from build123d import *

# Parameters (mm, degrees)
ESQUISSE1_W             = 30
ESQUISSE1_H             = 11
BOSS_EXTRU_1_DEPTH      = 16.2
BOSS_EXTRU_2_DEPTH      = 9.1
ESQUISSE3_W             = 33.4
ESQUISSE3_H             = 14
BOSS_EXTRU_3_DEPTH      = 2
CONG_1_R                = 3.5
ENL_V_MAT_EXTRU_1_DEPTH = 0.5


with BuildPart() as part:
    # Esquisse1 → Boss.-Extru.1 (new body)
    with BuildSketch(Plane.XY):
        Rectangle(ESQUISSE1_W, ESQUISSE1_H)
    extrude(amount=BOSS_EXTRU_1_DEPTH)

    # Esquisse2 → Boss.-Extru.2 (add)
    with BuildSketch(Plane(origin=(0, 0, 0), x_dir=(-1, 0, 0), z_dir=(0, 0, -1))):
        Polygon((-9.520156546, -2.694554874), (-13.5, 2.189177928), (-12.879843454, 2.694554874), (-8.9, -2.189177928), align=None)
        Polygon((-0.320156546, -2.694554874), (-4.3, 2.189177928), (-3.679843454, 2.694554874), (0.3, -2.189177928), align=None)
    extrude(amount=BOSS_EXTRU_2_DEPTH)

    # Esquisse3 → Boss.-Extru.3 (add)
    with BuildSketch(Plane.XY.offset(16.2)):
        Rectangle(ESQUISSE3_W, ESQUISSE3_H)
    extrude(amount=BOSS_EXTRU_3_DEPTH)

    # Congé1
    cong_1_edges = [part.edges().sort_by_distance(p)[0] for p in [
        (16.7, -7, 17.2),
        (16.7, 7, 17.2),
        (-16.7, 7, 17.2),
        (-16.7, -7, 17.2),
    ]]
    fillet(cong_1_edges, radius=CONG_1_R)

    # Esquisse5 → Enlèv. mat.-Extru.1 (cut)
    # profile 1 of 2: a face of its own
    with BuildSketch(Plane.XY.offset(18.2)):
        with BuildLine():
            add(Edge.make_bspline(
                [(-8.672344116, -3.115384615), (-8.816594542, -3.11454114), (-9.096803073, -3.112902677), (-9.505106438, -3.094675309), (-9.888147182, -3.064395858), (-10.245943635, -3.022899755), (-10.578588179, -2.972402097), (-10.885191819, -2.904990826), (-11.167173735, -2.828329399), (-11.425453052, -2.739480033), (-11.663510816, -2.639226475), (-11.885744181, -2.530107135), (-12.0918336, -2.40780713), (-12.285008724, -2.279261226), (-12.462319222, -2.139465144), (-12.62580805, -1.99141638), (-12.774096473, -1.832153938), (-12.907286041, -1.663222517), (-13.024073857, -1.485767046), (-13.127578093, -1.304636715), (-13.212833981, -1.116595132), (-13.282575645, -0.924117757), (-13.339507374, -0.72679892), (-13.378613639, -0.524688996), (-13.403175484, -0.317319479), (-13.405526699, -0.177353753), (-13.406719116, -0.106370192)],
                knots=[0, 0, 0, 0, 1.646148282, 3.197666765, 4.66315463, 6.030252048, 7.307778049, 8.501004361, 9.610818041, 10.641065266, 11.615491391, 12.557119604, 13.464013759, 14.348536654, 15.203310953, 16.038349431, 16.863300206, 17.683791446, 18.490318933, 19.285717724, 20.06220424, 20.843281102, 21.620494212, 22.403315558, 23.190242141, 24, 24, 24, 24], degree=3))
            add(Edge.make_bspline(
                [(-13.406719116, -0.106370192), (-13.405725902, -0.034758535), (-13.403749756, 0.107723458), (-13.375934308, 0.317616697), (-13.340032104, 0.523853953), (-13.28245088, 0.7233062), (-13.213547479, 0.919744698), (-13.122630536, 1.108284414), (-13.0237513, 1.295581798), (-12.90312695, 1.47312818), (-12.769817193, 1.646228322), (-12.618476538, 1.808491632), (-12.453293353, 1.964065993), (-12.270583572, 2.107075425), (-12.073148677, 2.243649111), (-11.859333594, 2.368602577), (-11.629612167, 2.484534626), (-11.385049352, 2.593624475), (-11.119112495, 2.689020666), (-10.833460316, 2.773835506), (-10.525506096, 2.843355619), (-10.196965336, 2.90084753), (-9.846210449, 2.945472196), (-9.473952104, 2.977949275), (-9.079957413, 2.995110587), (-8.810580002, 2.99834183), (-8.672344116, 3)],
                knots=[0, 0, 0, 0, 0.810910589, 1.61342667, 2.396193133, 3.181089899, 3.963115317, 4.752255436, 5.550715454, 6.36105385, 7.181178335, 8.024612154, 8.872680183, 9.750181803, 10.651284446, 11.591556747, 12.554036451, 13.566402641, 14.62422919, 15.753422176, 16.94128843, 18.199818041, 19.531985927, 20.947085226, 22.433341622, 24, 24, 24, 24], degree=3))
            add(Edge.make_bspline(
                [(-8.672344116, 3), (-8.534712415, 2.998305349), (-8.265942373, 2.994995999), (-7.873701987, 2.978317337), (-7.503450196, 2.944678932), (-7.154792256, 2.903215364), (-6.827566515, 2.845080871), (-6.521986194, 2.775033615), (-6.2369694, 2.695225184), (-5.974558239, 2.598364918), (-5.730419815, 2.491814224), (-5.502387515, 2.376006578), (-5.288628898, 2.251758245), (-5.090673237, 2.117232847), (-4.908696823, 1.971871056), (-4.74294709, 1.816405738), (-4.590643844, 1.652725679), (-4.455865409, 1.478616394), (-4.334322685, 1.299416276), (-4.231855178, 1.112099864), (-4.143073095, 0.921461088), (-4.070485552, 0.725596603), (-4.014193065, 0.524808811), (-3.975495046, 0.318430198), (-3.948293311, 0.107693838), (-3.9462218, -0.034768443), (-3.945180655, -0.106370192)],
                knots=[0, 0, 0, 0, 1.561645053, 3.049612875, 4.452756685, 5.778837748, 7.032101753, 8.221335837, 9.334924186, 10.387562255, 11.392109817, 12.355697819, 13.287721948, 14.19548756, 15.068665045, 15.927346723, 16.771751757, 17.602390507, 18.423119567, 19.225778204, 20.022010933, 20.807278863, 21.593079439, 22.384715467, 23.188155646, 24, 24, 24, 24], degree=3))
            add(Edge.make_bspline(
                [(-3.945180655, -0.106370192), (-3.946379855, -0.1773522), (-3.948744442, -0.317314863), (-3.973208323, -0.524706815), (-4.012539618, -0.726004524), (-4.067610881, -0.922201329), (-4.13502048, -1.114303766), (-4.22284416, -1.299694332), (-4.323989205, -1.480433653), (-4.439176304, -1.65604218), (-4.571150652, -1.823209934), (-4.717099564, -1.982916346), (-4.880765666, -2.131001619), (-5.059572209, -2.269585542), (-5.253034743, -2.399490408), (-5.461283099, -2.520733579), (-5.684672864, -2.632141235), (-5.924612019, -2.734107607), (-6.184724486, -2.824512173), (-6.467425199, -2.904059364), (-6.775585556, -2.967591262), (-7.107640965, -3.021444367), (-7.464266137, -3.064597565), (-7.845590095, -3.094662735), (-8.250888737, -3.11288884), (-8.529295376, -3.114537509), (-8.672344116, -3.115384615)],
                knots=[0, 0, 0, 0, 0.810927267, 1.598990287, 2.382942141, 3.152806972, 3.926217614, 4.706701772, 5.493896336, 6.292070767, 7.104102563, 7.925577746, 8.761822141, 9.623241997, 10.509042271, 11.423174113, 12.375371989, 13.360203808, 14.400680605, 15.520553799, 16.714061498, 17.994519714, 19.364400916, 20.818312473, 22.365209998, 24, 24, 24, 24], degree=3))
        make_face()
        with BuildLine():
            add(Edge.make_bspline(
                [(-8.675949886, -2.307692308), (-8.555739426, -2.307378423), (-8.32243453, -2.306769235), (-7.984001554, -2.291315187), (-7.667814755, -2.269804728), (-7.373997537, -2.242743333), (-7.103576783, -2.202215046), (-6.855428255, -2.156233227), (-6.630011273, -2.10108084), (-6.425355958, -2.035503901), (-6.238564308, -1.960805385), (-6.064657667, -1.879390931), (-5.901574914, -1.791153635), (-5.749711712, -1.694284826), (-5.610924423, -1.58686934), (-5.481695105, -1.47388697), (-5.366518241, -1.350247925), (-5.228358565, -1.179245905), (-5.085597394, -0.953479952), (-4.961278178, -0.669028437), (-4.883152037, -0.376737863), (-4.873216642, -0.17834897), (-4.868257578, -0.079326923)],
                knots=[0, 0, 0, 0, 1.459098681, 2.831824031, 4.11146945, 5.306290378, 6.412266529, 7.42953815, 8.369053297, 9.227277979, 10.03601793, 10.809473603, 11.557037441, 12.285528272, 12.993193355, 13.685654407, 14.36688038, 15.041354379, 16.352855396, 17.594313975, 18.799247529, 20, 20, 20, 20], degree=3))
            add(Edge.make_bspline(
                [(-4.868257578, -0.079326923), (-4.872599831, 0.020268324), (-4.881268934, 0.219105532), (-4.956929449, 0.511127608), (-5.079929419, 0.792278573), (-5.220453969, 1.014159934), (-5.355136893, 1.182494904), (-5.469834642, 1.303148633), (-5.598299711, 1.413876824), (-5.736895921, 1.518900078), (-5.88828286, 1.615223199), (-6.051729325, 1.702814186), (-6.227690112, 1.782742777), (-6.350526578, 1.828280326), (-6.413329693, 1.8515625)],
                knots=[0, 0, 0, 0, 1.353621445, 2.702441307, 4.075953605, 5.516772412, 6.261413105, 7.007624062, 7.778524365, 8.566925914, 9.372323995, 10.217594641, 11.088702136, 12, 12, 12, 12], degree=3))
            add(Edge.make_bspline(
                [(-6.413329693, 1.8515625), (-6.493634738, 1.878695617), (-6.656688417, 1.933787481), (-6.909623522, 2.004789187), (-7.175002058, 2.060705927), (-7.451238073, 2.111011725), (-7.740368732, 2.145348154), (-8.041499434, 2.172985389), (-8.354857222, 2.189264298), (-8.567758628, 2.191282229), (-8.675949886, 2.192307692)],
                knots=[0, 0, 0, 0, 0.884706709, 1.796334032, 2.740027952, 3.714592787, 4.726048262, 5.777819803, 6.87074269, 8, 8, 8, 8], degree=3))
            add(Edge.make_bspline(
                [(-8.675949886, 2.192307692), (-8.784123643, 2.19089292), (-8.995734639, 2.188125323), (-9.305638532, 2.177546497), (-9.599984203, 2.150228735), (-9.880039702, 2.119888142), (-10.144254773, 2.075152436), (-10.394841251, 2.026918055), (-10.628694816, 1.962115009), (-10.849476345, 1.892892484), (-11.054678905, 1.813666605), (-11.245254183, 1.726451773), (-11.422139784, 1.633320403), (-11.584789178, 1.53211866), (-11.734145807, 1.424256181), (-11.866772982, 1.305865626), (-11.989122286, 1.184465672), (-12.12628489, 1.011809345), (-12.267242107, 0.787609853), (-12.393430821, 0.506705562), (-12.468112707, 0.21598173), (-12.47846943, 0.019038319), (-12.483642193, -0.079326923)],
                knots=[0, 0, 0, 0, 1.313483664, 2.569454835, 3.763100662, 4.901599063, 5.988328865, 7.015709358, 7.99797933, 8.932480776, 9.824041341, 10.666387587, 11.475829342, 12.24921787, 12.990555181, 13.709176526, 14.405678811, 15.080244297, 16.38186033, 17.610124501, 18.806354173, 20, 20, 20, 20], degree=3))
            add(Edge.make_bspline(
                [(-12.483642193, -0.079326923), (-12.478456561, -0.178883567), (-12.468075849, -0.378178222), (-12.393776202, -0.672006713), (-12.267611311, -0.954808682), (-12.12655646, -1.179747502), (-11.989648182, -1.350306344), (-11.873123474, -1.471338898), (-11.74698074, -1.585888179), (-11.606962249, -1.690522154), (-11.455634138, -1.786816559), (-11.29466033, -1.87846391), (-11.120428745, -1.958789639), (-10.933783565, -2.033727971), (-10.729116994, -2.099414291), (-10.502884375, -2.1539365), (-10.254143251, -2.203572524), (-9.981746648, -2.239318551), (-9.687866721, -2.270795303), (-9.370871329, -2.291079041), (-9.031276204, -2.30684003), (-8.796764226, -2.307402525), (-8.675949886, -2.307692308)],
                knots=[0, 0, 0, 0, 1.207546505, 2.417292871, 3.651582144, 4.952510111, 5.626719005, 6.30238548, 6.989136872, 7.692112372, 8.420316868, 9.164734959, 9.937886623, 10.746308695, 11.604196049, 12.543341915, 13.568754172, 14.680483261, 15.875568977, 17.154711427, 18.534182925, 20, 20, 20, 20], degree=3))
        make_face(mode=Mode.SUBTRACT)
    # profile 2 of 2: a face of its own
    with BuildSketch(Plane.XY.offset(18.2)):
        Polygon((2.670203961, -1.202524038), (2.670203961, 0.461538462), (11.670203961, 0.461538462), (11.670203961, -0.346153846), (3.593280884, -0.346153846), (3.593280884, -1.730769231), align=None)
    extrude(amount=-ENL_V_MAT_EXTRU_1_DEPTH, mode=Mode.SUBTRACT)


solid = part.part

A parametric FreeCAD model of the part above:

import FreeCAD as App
import Part
import Sketcher
from FreeCAD import Vector
Q = App.Units.Quantity


def edges_at(feature, points):
    """Names of the edges that pass closest to the given points."""
    edges = feature.Shape.Edges
    near = lambda p: min(range(len(edges)), key=lambda i: edges[i].distToShape(Part.Vertex(*p))[0])
    return sorted({f"Edge{near(p) + 1}" for p in points})

doc = App.newDocument("Part")
body = doc.addObject("PartDesign::Body", "Body")

# Sketch on XY plane
sketch1 = body.newObject("Sketcher::SketchObject", "Sketch")
sketch1.AttachmentSupport = (doc.getObject("XY_Plane"), [""])
sketch1.MapMode = "FlatFace"
sketch1.addGeometry(Part.LineSegment(Vector(-15, 5.5, 0), Vector(-15, -5.5, 0)), False)
sketch1.addGeometry(Part.LineSegment(Vector(-15, -5.5, 0), Vector(15, -5.5, 0)), False)
sketch1.addGeometry(Part.LineSegment(Vector(15, -5.5, 0), Vector(15, 5.5, 0)), False)
sketch1.addGeometry(Part.LineSegment(Vector(15, 5.5, 0), Vector(-15, 5.5, 0)), False)
sketch1.addConstraint(Sketcher.Constraint("Coincident", 0, 2, 1, 1))
sketch1.addConstraint(Sketcher.Constraint("Coincident", 1, 2, 2, 1))
sketch1.addConstraint(Sketcher.Constraint("Coincident", 2, 2, 3, 1))
sketch1.addConstraint(Sketcher.Constraint("Coincident", 3, 2, 0, 1))
sketch1.addConstraint(Sketcher.Constraint("Vertical", 0))
sketch1.addConstraint(Sketcher.Constraint("Horizontal", 1))
sketch1.addConstraint(Sketcher.Constraint("Vertical", 2))
sketch1.addConstraint(Sketcher.Constraint("Horizontal", 3))
sketch1.addConstraint(Sketcher.Constraint("Symmetric", 0, 2, 2, 2, -1, 1))
sketch1.addConstraint(Sketcher.Constraint("DistanceX", 1, 1, 1, 2, Q("30 mm")))
sketch1.addConstraint(Sketcher.Constraint("DistanceY", 0, 2, 0, 1, Q("11 mm")))
pad1 = body.newObject("PartDesign::Pad", "Pad")
pad1.Profile = sketch1
pad1.Length = 16.2

# Sketch on XY plane
sketch2 = body.newObject("Sketcher::SketchObject", "Sketch001")
sketch2.AttachmentSupport = (doc.getObject("XY_Plane"), [""])
sketch2.MapMode = "FlatFace"
sketch2.addGeometry(Part.LineSegment(Vector(13.5, 2.189178, 0), Vector(9.520157, -2.694555, 0)), False)
sketch2.addGeometry(Part.LineSegment(Vector(9.520157, -2.694555, 0), Vector(8.9, -2.189178, 0)), False)
sketch2.addGeometry(Part.LineSegment(Vector(8.9, -2.189178, 0), Vector(12.879843, 2.694555, 0)), False)
sketch2.addGeometry(Part.LineSegment(Vector(12.879843, 2.694555, 0), Vector(13.5, 2.189178, 0)), False)
sketch2.addGeometry(Part.LineSegment(Vector(4.3, 2.189178, 0), Vector(0.320157, -2.694555, 0)), False)
sketch2.addGeometry(Part.LineSegment(Vector(0.320157, -2.694555, 0), Vector(-0.3, -2.189178, 0)), False)
sketch2.addGeometry(Part.LineSegment(Vector(-0.3, -2.189178, 0), Vector(3.679843, 2.694555, 0)), False)
sketch2.addGeometry(Part.LineSegment(Vector(3.679843, 2.694555, 0), Vector(4.3, 2.189178, 0)), False)
sketch2.addConstraint(Sketcher.Constraint("Coincident", 0, 2, 1, 1))
sketch2.addConstraint(Sketcher.Constraint("Coincident", 1, 2, 2, 1))
sketch2.addConstraint(Sketcher.Constraint("Coincident", 2, 2, 3, 1))
sketch2.addConstraint(Sketcher.Constraint("Coincident", 3, 2, 0, 1))
sketch2.addConstraint(Sketcher.Constraint("Coincident", 4, 2, 5, 1))
sketch2.addConstraint(Sketcher.Constraint("Coincident", 5, 2, 6, 1))
sketch2.addConstraint(Sketcher.Constraint("Coincident", 6, 2, 7, 1))
sketch2.addConstraint(Sketcher.Constraint("Coincident", 7, 2, 4, 1))
sketch2.addConstraint(Sketcher.Constraint("Perpendicular", 0, 1))
sketch2.addConstraint(Sketcher.Constraint("Perpendicular", 1, 2))
sketch2.addConstraint(Sketcher.Constraint("Perpendicular", 2, 3))
sketch2.addConstraint(Sketcher.Constraint("Perpendicular", 3, 4))
sketch2.addConstraint(Sketcher.Constraint("Perpendicular", 4, 5))
sketch2.addConstraint(Sketcher.Constraint("Perpendicular", 5, 6))
sketch2.addConstraint(Sketcher.Constraint("Perpendicular", 6, 7))
sketch2.addConstraint(Sketcher.Constraint("Horizontal", 0, 2, 4, 2))
sketch2.addConstraint(Sketcher.Constraint("Horizontal", 1, 2, 5, 2))
sketch2.addConstraint(Sketcher.Constraint("Horizontal", 2, 2, 6, 2))
sketch2.addConstraint(Sketcher.Constraint("Distance", 0, Q("6.3 mm")))
sketch2.addConstraint(Sketcher.Constraint("Distance", 1, Q("0.8 mm")))
sketch2.addConstraint(Sketcher.Constraint("DistanceX", -1, 1, 1, 2, Q("8.9 mm")))
sketch2.addConstraint(Sketcher.Constraint("DistanceX", -1, 1, 3, 2, Q("13.5 mm")))
sketch2.addConstraint(Sketcher.Constraint("DistanceX", 5, 2, -1, 1, Q("0.3 mm")))
sketch2.addConstraint(Sketcher.Constraint("DistanceY", 0, 2, -1, 1, Q("2.694555 mm")))
pad2 = body.newObject("PartDesign::Pad", "Pad001")
pad2.Profile = sketch2
pad2.Length = 9.1
pad2.Reversed = True

# Sketch on XY plane
sketch3 = body.newObject("Sketcher::SketchObject", "Sketch002")
sketch3.AttachmentSupport = (doc.getObject("XY_Plane"), [""])
sketch3.MapMode = "FlatFace"
sketch3.AttachmentOffset = App.Placement(Vector(0, 0, 16.2), App.Rotation())
sketch3.addGeometry(Part.LineSegment(Vector(-16.7, 7, 0), Vector(-16.7, -7, 0)), False)
sketch3.addGeometry(Part.LineSegment(Vector(-16.7, -7, 0), Vector(16.7, -7, 0)), False)
sketch3.addGeometry(Part.LineSegment(Vector(16.7, -7, 0), Vector(16.7, 7, 0)), False)
sketch3.addGeometry(Part.LineSegment(Vector(16.7, 7, 0), Vector(-16.7, 7, 0)), False)
sketch3.addConstraint(Sketcher.Constraint("Coincident", 0, 2, 1, 1))
sketch3.addConstraint(Sketcher.Constraint("Coincident", 1, 2, 2, 1))
sketch3.addConstraint(Sketcher.Constraint("Coincident", 2, 2, 3, 1))
sketch3.addConstraint(Sketcher.Constraint("Coincident", 3, 2, 0, 1))
sketch3.addConstraint(Sketcher.Constraint("Vertical", 0))
sketch3.addConstraint(Sketcher.Constraint("Horizontal", 1))
sketch3.addConstraint(Sketcher.Constraint("Vertical", 2))
sketch3.addConstraint(Sketcher.Constraint("Horizontal", 3))
sketch3.addConstraint(Sketcher.Constraint("Symmetric", 0, 2, 2, 2, -1, 1))
sketch3.addConstraint(Sketcher.Constraint("DistanceY", 0, 2, 0, 1, Q("14 mm")))
sketch3.addConstraint(Sketcher.Constraint("DistanceX", 1, 1, 1, 2, Q("33.4 mm")))
pad3 = body.newObject("PartDesign::Pad", "Pad002")
pad3.Profile = sketch3
pad3.Length = 2
doc.recompute()

fillet = body.newObject("PartDesign::Fillet", "Fillet")
fillet.Base = (pad3, edges_at(pad3, [
    (16.7, -7, 17.2),
    (16.7, 7, 17.2),
    (-16.7, 7, 17.2),
    (-16.7, -7, 17.2),
]))
fillet.Radius = 3.5

# Sketch on XY plane
sketch4 = body.newObject("Sketcher::SketchObject", "Sketch003")
sketch4.AttachmentSupport = (doc.getObject("XY_Plane"), [""])
sketch4.MapMode = "FlatFace"
sketch4.AttachmentOffset = App.Placement(Vector(0, 0, 18.2), App.Rotation())
sketch4.addGeometry(Part.BSplineCurve([Vector(-8.672344, -3.115385, 0), Vector(-8.816595, -3.114541, 0), Vector(-9.096803, -3.112903, 0), Vector(-9.505106, -3.094675, 0), Vector(-9.888147, -3.064396, 0), Vector(-10.245944, -3.0229, 0), Vector(-10.578588, -2.972402, 0), Vector(-10.885192, -2.904991, 0), Vector(-11.167174, -2.828329, 0), Vector(-11.425453, -2.73948, 0), Vector(-11.663511, -2.639226, 0), Vector(-11.885744, -2.530107, 0), Vector(-12.091834, -2.407807, 0), Vector(-12.285009, -2.279261, 0), Vector(-12.462319, -2.139465, 0), Vector(-12.625808, -1.991416, 0), Vector(-12.774096, -1.832154, 0), Vector(-12.907286, -1.663223, 0), Vector(-13.024074, -1.485767, 0), Vector(-13.127578, -1.304637, 0), Vector(-13.212834, -1.116595, 0), Vector(-13.282576, -0.924118, 0), Vector(-13.339507, -0.726799, 0), Vector(-13.378614, -0.524689, 0), Vector(-13.403175, -0.317319, 0), Vector(-13.405527, -0.177354, 0), Vector(-13.406719, -0.10637, 0)], [4, 1, 1, 1, 1, 1, 1, 1, 1, 1, 1, 1, 1, 1, 1, 1, 1, 1, 1, 1, 1, 1, 1, 1, 4], [0, 1.646148282, 3.197666765, 4.66315463, 6.030252048, 7.307778049, 8.501004361, 9.610818041, 10.641065266, 11.615491391, 12.557119604, 13.464013759, 14.348536654, 15.203310953, 16.038349431, 16.863300206, 17.683791446, 18.490318933, 19.285717724, 20.06220424, 20.843281102, 21.620494212, 22.403315558, 23.190242141, 24], False, 3, [1, 1, 1, 1, 1, 1, 1, 1, 1, 1, 1, 1, 1, 1, 1, 1, 1, 1, 1, 1, 1, 1, 1, 1, 1, 1, 1], False), False)
sketch4.addGeometry(Part.BSplineCurve([Vector(-3.945181, -0.10637, 0), Vector(-3.94638, -0.177352, 0), Vector(-3.948744, -0.317315, 0), Vector(-3.973208, -0.524707, 0), Vector(-4.01254, -0.726005, 0), Vector(-4.067611, -0.922201, 0), Vector(-4.13502, -1.114304, 0), Vector(-4.222844, -1.299694, 0), Vector(-4.323989, -1.480434, 0), Vector(-4.439176, -1.656042, 0), Vector(-4.571151, -1.82321, 0), Vector(-4.7171, -1.982916, 0), Vector(-4.880766, -2.131002, 0), Vector(-5.059572, -2.269586, 0), Vector(-5.253035, -2.39949, 0), Vector(-5.461283, -2.520734, 0), Vector(-5.684673, -2.632141, 0), Vector(-5.924612, -2.734108, 0), Vector(-6.184724, -2.824512, 0), Vector(-6.467425, -2.904059, 0), Vector(-6.775586, -2.967591, 0), Vector(-7.107641, -3.021444, 0), Vector(-7.464266, -3.064598, 0), Vector(-7.84559, -3.094663, 0), Vector(-8.250889, -3.112889, 0), Vector(-8.529295, -3.114538, 0), Vector(-8.672344, -3.115385, 0)], [4, 1, 1, 1, 1, 1, 1, 1, 1, 1, 1, 1, 1, 1, 1, 1, 1, 1, 1, 1, 1, 1, 1, 1, 4], [0, 0.810927267, 1.598990287, 2.382942141, 3.152806972, 3.926217614, 4.706701772, 5.493896336, 6.292070767, 7.104102563, 7.925577746, 8.761822141, 9.623241997, 10.509042271, 11.423174113, 12.375371989, 13.360203808, 14.400680605, 15.520553799, 16.714061498, 17.994519714, 19.364400916, 20.818312473, 22.365209998, 24], False, 3, [1, 1, 1, 1, 1, 1, 1, 1, 1, 1, 1, 1, 1, 1, 1, 1, 1, 1, 1, 1, 1, 1, 1, 1, 1, 1, 1], False), False)
sketch4.addGeometry(Part.BSplineCurve([Vector(-8.672344, 3, 0), Vector(-8.534712, 2.998305, 0), Vector(-8.265942, 2.994996, 0), Vector(-7.873702, 2.978317, 0), Vector(-7.50345, 2.944679, 0), Vector(-7.154792, 2.903215, 0), Vector(-6.827567, 2.845081, 0), Vector(-6.521986, 2.775034, 0), Vector(-6.236969, 2.695225, 0), Vector(-5.974558, 2.598365, 0), Vector(-5.73042, 2.491814, 0), Vector(-5.502388, 2.376007, 0), Vector(-5.288629, 2.251758, 0), Vector(-5.090673, 2.117233, 0), Vector(-4.908697, 1.971871, 0), Vector(-4.742947, 1.816406, 0), Vector(-4.590644, 1.652726, 0), Vector(-4.455865, 1.478616, 0), Vector(-4.334323, 1.299416, 0), Vector(-4.231855, 1.1121, 0), Vector(-4.143073, 0.921461, 0), Vector(-4.070486, 0.725597, 0), Vector(-4.014193, 0.524809, 0), Vector(-3.975495, 0.31843, 0), Vector(-3.948293, 0.107694, 0), Vector(-3.946222, -0.034768, 0), Vector(-3.945181, -0.10637, 0)], [4, 1, 1, 1, 1, 1, 1, 1, 1, 1, 1, 1, 1, 1, 1, 1, 1, 1, 1, 1, 1, 1, 1, 1, 4], [0, 1.561645053, 3.049612875, 4.452756685, 5.778837748, 7.032101753, 8.221335837, 9.334924186, 10.387562255, 11.392109817, 12.355697819, 13.287721948, 14.19548756, 15.068665045, 15.927346723, 16.771751757, 17.602390507, 18.423119567, 19.225778204, 20.022010933, 20.807278863, 21.593079439, 22.384715467, 23.188155646, 24], False, 3, [1, 1, 1, 1, 1, 1, 1, 1, 1, 1, 1, 1, 1, 1, 1, 1, 1, 1, 1, 1, 1, 1, 1, 1, 1, 1, 1], False), False)
sketch4.addGeometry(Part.BSplineCurve([Vector(-13.406719, -0.10637, 0), Vector(-13.405726, -0.034759, 0), Vector(-13.40375, 0.107723, 0), Vector(-13.375934, 0.317617, 0), Vector(-13.340032, 0.523854, 0), Vector(-13.282451, 0.723306, 0), Vector(-13.213547, 0.919745, 0), Vector(-13.122631, 1.108284, 0), Vector(-13.023751, 1.295582, 0), Vector(-12.903127, 1.473128, 0), Vector(-12.769817, 1.646228, 0), Vector(-12.618477, 1.808492, 0), Vector(-12.453293, 1.964066, 0), Vector(-12.270584, 2.107075, 0), Vector(-12.073149, 2.243649, 0), Vector(-11.859334, 2.368603, 0), Vector(-11.629612, 2.484535, 0), Vector(-11.385049, 2.593624, 0), Vector(-11.119112, 2.689021, 0), Vector(-10.83346, 2.773836, 0), Vector(-10.525506, 2.843356, 0), Vector(-10.196965, 2.900848, 0), Vector(-9.84621, 2.945472, 0), Vector(-9.473952, 2.977949, 0), Vector(-9.079957, 2.995111, 0), Vector(-8.81058, 2.998342, 0), Vector(-8.672344, 3, 0)], [4, 1, 1, 1, 1, 1, 1, 1, 1, 1, 1, 1, 1, 1, 1, 1, 1, 1, 1, 1, 1, 1, 1, 1, 4], [0, 0.810910589, 1.61342667, 2.396193133, 3.181089899, 3.963115317, 4.752255436, 5.550715454, 6.36105385, 7.181178335, 8.024612154, 8.872680183, 9.750181803, 10.651284446, 11.591556747, 12.554036451, 13.566402641, 14.62422919, 15.753422176, 16.94128843, 18.199818041, 19.531985927, 20.947085226, 22.433341622, 24], False, 3, [1, 1, 1, 1, 1, 1, 1, 1, 1, 1, 1, 1, 1, 1, 1, 1, 1, 1, 1, 1, 1, 1, 1, 1, 1, 1, 1], False), False)
sketch4.addGeometry(Part.BSplineCurve([Vector(-12.483642, -0.079327, 0), Vector(-12.478457, -0.178884, 0), Vector(-12.468076, -0.378178, 0), Vector(-12.393776, -0.672007, 0), Vector(-12.267611, -0.954809, 0), Vector(-12.126556, -1.179748, 0), Vector(-11.989648, -1.350306, 0), Vector(-11.873123, -1.471339, 0), Vector(-11.746981, -1.585888, 0), Vector(-11.606962, -1.690522, 0), Vector(-11.455634, -1.786817, 0), Vector(-11.29466, -1.878464, 0), Vector(-11.120429, -1.95879, 0), Vector(-10.933784, -2.033728, 0), Vector(-10.729117, -2.099414, 0), Vector(-10.502884, -2.153936, 0), Vector(-10.254143, -2.203573, 0), Vector(-9.981747, -2.239319, 0), Vector(-9.687867, -2.270795, 0), Vector(-9.370871, -2.291079, 0), Vector(-9.031276, -2.30684, 0), Vector(-8.796764, -2.307403, 0), Vector(-8.67595, -2.307692, 0)], [4, 1, 1, 1, 1, 1, 1, 1, 1, 1, 1, 1, 1, 1, 1, 1, 1, 1, 1, 1, 4], [0, 1.207546505, 2.417292871, 3.651582144, 4.952510111, 5.626719005, 6.30238548, 6.989136872, 7.692112372, 8.420316868, 9.164734959, 9.937886623, 10.746308695, 11.604196049, 12.543341915, 13.568754172, 14.680483261, 15.875568977, 17.154711427, 18.534182925, 20], False, 3, [1, 1, 1, 1, 1, 1, 1, 1, 1, 1, 1, 1, 1, 1, 1, 1, 1, 1, 1, 1, 1, 1, 1], False), False)
sketch4.addGeometry(Part.BSplineCurve([Vector(-8.67595, 2.192308, 0), Vector(-8.784124, 2.190893, 0), Vector(-8.995735, 2.188125, 0), Vector(-9.305639, 2.177546, 0), Vector(-9.599984, 2.150229, 0), Vector(-9.88004, 2.119888, 0), Vector(-10.144255, 2.075152, 0), Vector(-10.394841, 2.026918, 0), Vector(-10.628695, 1.962115, 0), Vector(-10.849476, 1.892892, 0), Vector(-11.054679, 1.813667, 0), Vector(-11.245254, 1.726452, 0), Vector(-11.42214, 1.63332, 0), Vector(-11.584789, 1.532119, 0), Vector(-11.734146, 1.424256, 0), Vector(-11.866773, 1.305866, 0), Vector(-11.989122, 1.184466, 0), Vector(-12.126285, 1.011809, 0), Vector(-12.267242, 0.78761, 0), Vector(-12.393431, 0.506706, 0), Vector(-12.468113, 0.215982, 0), Vector(-12.478469, 0.019038, 0), Vector(-12.483642, -0.079327, 0)], [4, 1, 1, 1, 1, 1, 1, 1, 1, 1, 1, 1, 1, 1, 1, 1, 1, 1, 1, 1, 4], [0, 1.313483664, 2.569454835, 3.763100662, 4.901599063, 5.988328865, 7.015709358, 7.99797933, 8.932480776, 9.824041341, 10.666387587, 11.475829342, 12.24921787, 12.990555181, 13.709176526, 14.405678811, 15.080244297, 16.38186033, 17.610124501, 18.806354173, 20], False, 3, [1, 1, 1, 1, 1, 1, 1, 1, 1, 1, 1, 1, 1, 1, 1, 1, 1, 1, 1, 1, 1, 1, 1], False), False)
sketch4.addGeometry(Part.BSplineCurve([Vector(-6.41333, 1.851562, 0), Vector(-6.493635, 1.878696, 0), Vector(-6.656688, 1.933787, 0), Vector(-6.909624, 2.004789, 0), Vector(-7.175002, 2.060706, 0), Vector(-7.451238, 2.111012, 0), Vector(-7.740369, 2.145348, 0), Vector(-8.041499, 2.172985, 0), Vector(-8.354857, 2.189264, 0), Vector(-8.567759, 2.191282, 0), Vector(-8.67595, 2.192308, 0)], [4, 1, 1, 1, 1, 1, 1, 1, 4], [0, 0.884706709, 1.796334032, 2.740027952, 3.714592787, 4.726048262, 5.777819803, 6.87074269, 8], False, 3, [1, 1, 1, 1, 1, 1, 1, 1, 1, 1, 1], False), False)
sketch4.addGeometry(Part.BSplineCurve([Vector(-4.868258, -0.079327, 0), Vector(-4.8726, 0.020268, 0), Vector(-4.881269, 0.219106, 0), Vector(-4.956929, 0.511128, 0), Vector(-5.079929, 0.792279, 0), Vector(-5.220454, 1.01416, 0), Vector(-5.355137, 1.182495, 0), Vector(-5.469835, 1.303149, 0), Vector(-5.5983, 1.413877, 0), Vector(-5.736896, 1.5189, 0), Vector(-5.888283, 1.615223, 0), Vector(-6.051729, 1.702814, 0), Vector(-6.22769, 1.782743, 0), Vector(-6.350527, 1.82828, 0), Vector(-6.41333, 1.851562, 0)], [4, 1, 1, 1, 1, 1, 1, 1, 1, 1, 1, 1, 4], [0, 1.353621445, 2.702441307, 4.075953605, 5.516772412, 6.261413105, 7.007624062, 7.778524365, 8.566925914, 9.372323995, 10.217594641, 11.088702136, 12], False, 3, [1, 1, 1, 1, 1, 1, 1, 1, 1, 1, 1, 1, 1, 1, 1], False), False)
sketch4.addGeometry(Part.BSplineCurve([Vector(-8.67595, -2.307692, 0), Vector(-8.555739, -2.307378, 0), Vector(-8.322435, -2.306769, 0), Vector(-7.984002, -2.291315, 0), Vector(-7.667815, -2.269805, 0), Vector(-7.373998, -2.242743, 0), Vector(-7.103577, -2.202215, 0), Vector(-6.855428, -2.156233, 0), Vector(-6.630011, -2.101081, 0), Vector(-6.425356, -2.035504, 0), Vector(-6.238564, -1.960805, 0), Vector(-6.064658, -1.879391, 0), Vector(-5.901575, -1.791154, 0), Vector(-5.749712, -1.694285, 0), Vector(-5.610924, -1.586869, 0), Vector(-5.481695, -1.473887, 0), Vector(-5.366518, -1.350248, 0), Vector(-5.228359, -1.179246, 0), Vector(-5.085597, -0.95348, 0), Vector(-4.961278, -0.669028, 0), Vector(-4.883152, -0.376738, 0), Vector(-4.873217, -0.178349, 0), Vector(-4.868258, -0.079327, 0)], [4, 1, 1, 1, 1, 1, 1, 1, 1, 1, 1, 1, 1, 1, 1, 1, 1, 1, 1, 1, 4], [0, 1.459098681, 2.831824031, 4.11146945, 5.306290378, 6.412266529, 7.42953815, 8.369053297, 9.227277979, 10.03601793, 10.809473603, 11.557037441, 12.285528272, 12.993193355, 13.685654407, 14.36688038, 15.041354379, 16.352855396, 17.594313975, 18.799247529, 20], False, 3, [1, 1, 1, 1, 1, 1, 1, 1, 1, 1, 1, 1, 1, 1, 1, 1, 1, 1, 1, 1, 1, 1, 1], False), False)
sketch4.addGeometry(Part.LineSegment(Vector(2.670204, 0.461538, 0), Vector(2.670204, -1.202524, 0)), False)
sketch4.addGeometry(Part.LineSegment(Vector(2.670204, -1.202524, 0), Vector(3.593281, -1.730769, 0)), False)
sketch4.addGeometry(Part.LineSegment(Vector(3.593281, -1.730769, 0), Vector(3.593281, -0.346154, 0)), False)
sketch4.addGeometry(Part.LineSegment(Vector(3.593281, -0.346154, 0), Vector(11.670204, -0.346154, 0)), False)
sketch4.addGeometry(Part.LineSegment(Vector(11.670204, -0.346154, 0), Vector(11.670204, 0.461538, 0)), False)
sketch4.addGeometry(Part.LineSegment(Vector(11.670204, 0.461538, 0), Vector(2.670204, 0.461538, 0)), False)
sketch4.addConstraint(Sketcher.Constraint("Block", 0))
sketch4.addConstraint(Sketcher.Constraint("Block", 1))
sketch4.addConstraint(Sketcher.Constraint("Block", 2))
sketch4.addConstraint(Sketcher.Constraint("Block", 3))
sketch4.addConstraint(Sketcher.Constraint("Block", 4))
sketch4.addConstraint(Sketcher.Constraint("Block", 5))
sketch4.addConstraint(Sketcher.Constraint("Block", 6))
sketch4.addConstraint(Sketcher.Constraint("Block", 7))
sketch4.addConstraint(Sketcher.Constraint("Block", 8))
sketch4.addConstraint(Sketcher.Constraint("Coincident", 9, 2, 10, 1))
sketch4.addConstraint(Sketcher.Constraint("Coincident", 10, 2, 11, 1))
sketch4.addConstraint(Sketcher.Constraint("Coincident", 11, 2, 12, 1))
sketch4.addConstraint(Sketcher.Constraint("Coincident", 12, 2, 13, 1))
sketch4.addConstraint(Sketcher.Constraint("Coincident", 13, 2, 14, 1))
sketch4.addConstraint(Sketcher.Constraint("Coincident", 14, 2, 9, 1))
sketch4.addConstraint(Sketcher.Constraint("Vertical", 9))
sketch4.addConstraint(Sketcher.Constraint("Vertical", 11))
sketch4.addConstraint(Sketcher.Constraint("Horizontal", 12))
sketch4.addConstraint(Sketcher.Constraint("Vertical", 13))
sketch4.addConstraint(Sketcher.Constraint("Horizontal", 14))
sketch4.addConstraint(Sketcher.Constraint("DistanceX", 14, 2, 14, 1, Q("9 mm")))
sketch4.addConstraint(Sketcher.Constraint("Distance", 10, Q("1.063538 mm")))
sketch4.addConstraint(Sketcher.Constraint("DistanceX", 12, 1, 12, 2, Q("8.076923 mm")))
sketch4.addConstraint(Sketcher.Constraint("DistanceY", 9, 2, 9, 1, Q("1.664062 mm")))
sketch4.addConstraint(Sketcher.Constraint("DistanceY", 11, 1, 11, 2, Q("1.384615 mm")))
sketch4.addConstraint(Sketcher.Constraint("DistanceX", -1, 1, 10, 2, Q("3.593281 mm")))
sketch4.addConstraint(Sketcher.Constraint("DistanceY", 10, 2, -1, 1, Q("1.730769 mm")))
pocket1 = body.newObject("PartDesign::Pocket", "Pocket")
pocket1.Profile = sketch4
pocket1.Length = 0.5

doc.recompute()
